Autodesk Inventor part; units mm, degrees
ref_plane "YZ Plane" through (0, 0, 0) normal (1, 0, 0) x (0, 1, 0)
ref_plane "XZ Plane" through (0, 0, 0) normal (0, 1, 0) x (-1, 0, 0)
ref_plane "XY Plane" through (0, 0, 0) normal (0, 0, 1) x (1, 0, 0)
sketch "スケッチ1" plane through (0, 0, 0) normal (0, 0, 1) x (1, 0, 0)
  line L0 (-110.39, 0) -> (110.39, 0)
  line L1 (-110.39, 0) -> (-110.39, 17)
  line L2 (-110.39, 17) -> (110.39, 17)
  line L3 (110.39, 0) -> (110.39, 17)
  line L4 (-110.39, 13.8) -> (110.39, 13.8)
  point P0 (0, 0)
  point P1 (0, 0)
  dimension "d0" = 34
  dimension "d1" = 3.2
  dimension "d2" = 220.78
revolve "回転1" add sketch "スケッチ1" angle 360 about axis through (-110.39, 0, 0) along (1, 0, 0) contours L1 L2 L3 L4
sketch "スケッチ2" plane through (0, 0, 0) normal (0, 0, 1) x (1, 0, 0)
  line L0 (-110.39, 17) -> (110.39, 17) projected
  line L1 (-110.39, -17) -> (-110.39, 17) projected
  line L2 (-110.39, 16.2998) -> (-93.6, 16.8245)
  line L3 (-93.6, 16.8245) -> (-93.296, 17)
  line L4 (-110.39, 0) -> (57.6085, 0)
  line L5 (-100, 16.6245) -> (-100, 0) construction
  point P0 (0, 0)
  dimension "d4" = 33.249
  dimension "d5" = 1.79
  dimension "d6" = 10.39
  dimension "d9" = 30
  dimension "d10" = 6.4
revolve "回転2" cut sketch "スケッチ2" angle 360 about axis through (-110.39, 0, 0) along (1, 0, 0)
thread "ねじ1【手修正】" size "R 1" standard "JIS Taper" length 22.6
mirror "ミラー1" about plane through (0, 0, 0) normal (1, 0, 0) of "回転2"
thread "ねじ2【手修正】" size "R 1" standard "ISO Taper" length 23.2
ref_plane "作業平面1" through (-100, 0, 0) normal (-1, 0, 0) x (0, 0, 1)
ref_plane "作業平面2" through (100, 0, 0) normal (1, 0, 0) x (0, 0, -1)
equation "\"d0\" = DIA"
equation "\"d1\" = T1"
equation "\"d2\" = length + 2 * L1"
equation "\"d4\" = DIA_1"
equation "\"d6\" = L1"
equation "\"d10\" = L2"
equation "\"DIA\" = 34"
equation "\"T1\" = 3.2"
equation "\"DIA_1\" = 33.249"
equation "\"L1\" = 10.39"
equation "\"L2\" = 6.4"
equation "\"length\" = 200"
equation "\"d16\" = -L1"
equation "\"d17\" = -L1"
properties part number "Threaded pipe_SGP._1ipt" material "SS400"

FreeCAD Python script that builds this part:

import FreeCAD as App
import Part
import Sketcher

V = App.Vector
Q = App.Units.Quantity

doc = App.newDocument("Part")
body = doc.addObject("PartDesign::Body", "Body")

# Sketch on XY plane
sketch1 = body.newObject("Sketcher::SketchObject", "Sketch")
sketch1.AttachmentSupport = (doc.getObject("XY_Plane"), [""])
sketch1.MapMode = "FlatFace"
sketch1.addGeometry(Part.LineSegment(V(-110.4, 17, 0), V(-110.4, 13.8, 0)), False)
sketch1.addGeometry(Part.LineSegment(V(-110.4, 13.8, 0), V(110.4, 13.8, 0)), False)
sketch1.addGeometry(Part.LineSegment(V(110.4, 13.8, 0), V(110.4, 17, 0)), False)
sketch1.addGeometry(Part.LineSegment(V(110.4, 17, 0), V(-110.4, 17, 0)), False)
sketch1.addConstraint(Sketcher.Constraint("Coincident", 0, 2, 1, 1))
sketch1.addConstraint(Sketcher.Constraint("Coincident", 1, 2, 2, 1))
sketch1.addConstraint(Sketcher.Constraint("Coincident", 2, 2, 3, 1))
sketch1.addConstraint(Sketcher.Constraint("Coincident", 3, 2, 0, 1))
sketch1.addConstraint(Sketcher.Constraint("Vertical", 0))
sketch1.addConstraint(Sketcher.Constraint("Horizontal", 1))
sketch1.addConstraint(Sketcher.Constraint("Vertical", 2))
sketch1.addConstraint(Sketcher.Constraint("Horizontal", 3))
sketch1.addConstraint(Sketcher.Constraint("DistanceY", 0, 2, 0, 1, Q("3.2 mm")))
sketch1.addConstraint(Sketcher.Constraint("DistanceX", 1, 1, 1, 2, Q("220.78 mm")))
sketch1.addConstraint(Sketcher.Constraint("DistanceY", -1, 1, 2, 2, Q("17 mm")))
sketch1.addConstraint(Sketcher.Constraint("DistanceX", 0, 2, -1, 1, Q("110.39 mm")))
revolution = body.newObject("PartDesign::Revolution", "Revolution")
revolution.Profile = sketch1
revolution.ReferenceAxis = (sketch1, ["H_Axis"])
revolution.Angle = 360

# Sketch on XY plane
sketch2 = body.newObject("Sketcher::SketchObject", "Sketch001")
sketch2.AttachmentSupport = (doc.getObject("XY_Plane"), [""])
sketch2.MapMode = "FlatFace"
sketch2.addGeometry(Part.LineSegment(V(-93.3, 17, 0), V(-110.39, 17, 0)), False)
sketch2.addGeometry(Part.LineSegment(V(-110.39, 17, 0), V(-110.39, 16.3, 0)), False)
sketch2.addGeometry(Part.LineSegment(V(-110.39, 16.3, 0), V(-93.6, 16.82, 0)), False)
sketch2.addGeometry(Part.LineSegment(V(-93.6, 16.82, 0), V(-93.3, 17, 0)), False)
sketch2.addConstraint(Sketcher.Constraint("Coincident", 0, 2, 1, 1))
sketch2.addConstraint(Sketcher.Constraint("Coincident", 1, 2, 2, 1))
sketch2.addConstraint(Sketcher.Constraint("Coincident", 2, 2, 3, 1))
sketch2.addConstraint(Sketcher.Constraint("Coincident", 3, 2, 0, 1))
sketch2.addConstraint(Sketcher.Constraint("Horizontal", 0))
sketch2.addConstraint(Sketcher.Constraint("Vertical", 1))
sketch2.addConstraint(Sketcher.Constraint("Angle", 2, Q("1.79 deg")))
sketch2.addConstraint(Sketcher.Constraint("DistanceY", -1, 1, 0, 2, Q("17 mm")))
sketch2.addConstraint(Sketcher.Constraint("DistanceX", 2, 2, -1, 1, Q("93.6 mm")))
sketch2.addConstraint(Sketcher.Constraint("DistanceX", 0, 2, 0, 1, Q("17.094 mm")))
sketch2.addConstraint(Sketcher.Constraint("DistanceX", 0, 2, -1, 1, Q("110.39 mm")))
sketch2.addConstraint(Sketcher.Constraint("Distance", 3, Q("0.351 mm")))
groove = body.newObject("PartDesign::Groove", "Groove")
groove.Profile = sketch2
groove.ReferenceAxis = (sketch2, ["H_Axis"])
groove.Angle = 360
doc.recompute()

mirrored = body.newObject("PartDesign::Mirrored", "Mirrored")
mirrored.Originals = [groove]
mirrored.MirrorPlane = (doc.getObject("YZ_Plane"), [""])
body.Tip = mirrored

doc.recompute()
